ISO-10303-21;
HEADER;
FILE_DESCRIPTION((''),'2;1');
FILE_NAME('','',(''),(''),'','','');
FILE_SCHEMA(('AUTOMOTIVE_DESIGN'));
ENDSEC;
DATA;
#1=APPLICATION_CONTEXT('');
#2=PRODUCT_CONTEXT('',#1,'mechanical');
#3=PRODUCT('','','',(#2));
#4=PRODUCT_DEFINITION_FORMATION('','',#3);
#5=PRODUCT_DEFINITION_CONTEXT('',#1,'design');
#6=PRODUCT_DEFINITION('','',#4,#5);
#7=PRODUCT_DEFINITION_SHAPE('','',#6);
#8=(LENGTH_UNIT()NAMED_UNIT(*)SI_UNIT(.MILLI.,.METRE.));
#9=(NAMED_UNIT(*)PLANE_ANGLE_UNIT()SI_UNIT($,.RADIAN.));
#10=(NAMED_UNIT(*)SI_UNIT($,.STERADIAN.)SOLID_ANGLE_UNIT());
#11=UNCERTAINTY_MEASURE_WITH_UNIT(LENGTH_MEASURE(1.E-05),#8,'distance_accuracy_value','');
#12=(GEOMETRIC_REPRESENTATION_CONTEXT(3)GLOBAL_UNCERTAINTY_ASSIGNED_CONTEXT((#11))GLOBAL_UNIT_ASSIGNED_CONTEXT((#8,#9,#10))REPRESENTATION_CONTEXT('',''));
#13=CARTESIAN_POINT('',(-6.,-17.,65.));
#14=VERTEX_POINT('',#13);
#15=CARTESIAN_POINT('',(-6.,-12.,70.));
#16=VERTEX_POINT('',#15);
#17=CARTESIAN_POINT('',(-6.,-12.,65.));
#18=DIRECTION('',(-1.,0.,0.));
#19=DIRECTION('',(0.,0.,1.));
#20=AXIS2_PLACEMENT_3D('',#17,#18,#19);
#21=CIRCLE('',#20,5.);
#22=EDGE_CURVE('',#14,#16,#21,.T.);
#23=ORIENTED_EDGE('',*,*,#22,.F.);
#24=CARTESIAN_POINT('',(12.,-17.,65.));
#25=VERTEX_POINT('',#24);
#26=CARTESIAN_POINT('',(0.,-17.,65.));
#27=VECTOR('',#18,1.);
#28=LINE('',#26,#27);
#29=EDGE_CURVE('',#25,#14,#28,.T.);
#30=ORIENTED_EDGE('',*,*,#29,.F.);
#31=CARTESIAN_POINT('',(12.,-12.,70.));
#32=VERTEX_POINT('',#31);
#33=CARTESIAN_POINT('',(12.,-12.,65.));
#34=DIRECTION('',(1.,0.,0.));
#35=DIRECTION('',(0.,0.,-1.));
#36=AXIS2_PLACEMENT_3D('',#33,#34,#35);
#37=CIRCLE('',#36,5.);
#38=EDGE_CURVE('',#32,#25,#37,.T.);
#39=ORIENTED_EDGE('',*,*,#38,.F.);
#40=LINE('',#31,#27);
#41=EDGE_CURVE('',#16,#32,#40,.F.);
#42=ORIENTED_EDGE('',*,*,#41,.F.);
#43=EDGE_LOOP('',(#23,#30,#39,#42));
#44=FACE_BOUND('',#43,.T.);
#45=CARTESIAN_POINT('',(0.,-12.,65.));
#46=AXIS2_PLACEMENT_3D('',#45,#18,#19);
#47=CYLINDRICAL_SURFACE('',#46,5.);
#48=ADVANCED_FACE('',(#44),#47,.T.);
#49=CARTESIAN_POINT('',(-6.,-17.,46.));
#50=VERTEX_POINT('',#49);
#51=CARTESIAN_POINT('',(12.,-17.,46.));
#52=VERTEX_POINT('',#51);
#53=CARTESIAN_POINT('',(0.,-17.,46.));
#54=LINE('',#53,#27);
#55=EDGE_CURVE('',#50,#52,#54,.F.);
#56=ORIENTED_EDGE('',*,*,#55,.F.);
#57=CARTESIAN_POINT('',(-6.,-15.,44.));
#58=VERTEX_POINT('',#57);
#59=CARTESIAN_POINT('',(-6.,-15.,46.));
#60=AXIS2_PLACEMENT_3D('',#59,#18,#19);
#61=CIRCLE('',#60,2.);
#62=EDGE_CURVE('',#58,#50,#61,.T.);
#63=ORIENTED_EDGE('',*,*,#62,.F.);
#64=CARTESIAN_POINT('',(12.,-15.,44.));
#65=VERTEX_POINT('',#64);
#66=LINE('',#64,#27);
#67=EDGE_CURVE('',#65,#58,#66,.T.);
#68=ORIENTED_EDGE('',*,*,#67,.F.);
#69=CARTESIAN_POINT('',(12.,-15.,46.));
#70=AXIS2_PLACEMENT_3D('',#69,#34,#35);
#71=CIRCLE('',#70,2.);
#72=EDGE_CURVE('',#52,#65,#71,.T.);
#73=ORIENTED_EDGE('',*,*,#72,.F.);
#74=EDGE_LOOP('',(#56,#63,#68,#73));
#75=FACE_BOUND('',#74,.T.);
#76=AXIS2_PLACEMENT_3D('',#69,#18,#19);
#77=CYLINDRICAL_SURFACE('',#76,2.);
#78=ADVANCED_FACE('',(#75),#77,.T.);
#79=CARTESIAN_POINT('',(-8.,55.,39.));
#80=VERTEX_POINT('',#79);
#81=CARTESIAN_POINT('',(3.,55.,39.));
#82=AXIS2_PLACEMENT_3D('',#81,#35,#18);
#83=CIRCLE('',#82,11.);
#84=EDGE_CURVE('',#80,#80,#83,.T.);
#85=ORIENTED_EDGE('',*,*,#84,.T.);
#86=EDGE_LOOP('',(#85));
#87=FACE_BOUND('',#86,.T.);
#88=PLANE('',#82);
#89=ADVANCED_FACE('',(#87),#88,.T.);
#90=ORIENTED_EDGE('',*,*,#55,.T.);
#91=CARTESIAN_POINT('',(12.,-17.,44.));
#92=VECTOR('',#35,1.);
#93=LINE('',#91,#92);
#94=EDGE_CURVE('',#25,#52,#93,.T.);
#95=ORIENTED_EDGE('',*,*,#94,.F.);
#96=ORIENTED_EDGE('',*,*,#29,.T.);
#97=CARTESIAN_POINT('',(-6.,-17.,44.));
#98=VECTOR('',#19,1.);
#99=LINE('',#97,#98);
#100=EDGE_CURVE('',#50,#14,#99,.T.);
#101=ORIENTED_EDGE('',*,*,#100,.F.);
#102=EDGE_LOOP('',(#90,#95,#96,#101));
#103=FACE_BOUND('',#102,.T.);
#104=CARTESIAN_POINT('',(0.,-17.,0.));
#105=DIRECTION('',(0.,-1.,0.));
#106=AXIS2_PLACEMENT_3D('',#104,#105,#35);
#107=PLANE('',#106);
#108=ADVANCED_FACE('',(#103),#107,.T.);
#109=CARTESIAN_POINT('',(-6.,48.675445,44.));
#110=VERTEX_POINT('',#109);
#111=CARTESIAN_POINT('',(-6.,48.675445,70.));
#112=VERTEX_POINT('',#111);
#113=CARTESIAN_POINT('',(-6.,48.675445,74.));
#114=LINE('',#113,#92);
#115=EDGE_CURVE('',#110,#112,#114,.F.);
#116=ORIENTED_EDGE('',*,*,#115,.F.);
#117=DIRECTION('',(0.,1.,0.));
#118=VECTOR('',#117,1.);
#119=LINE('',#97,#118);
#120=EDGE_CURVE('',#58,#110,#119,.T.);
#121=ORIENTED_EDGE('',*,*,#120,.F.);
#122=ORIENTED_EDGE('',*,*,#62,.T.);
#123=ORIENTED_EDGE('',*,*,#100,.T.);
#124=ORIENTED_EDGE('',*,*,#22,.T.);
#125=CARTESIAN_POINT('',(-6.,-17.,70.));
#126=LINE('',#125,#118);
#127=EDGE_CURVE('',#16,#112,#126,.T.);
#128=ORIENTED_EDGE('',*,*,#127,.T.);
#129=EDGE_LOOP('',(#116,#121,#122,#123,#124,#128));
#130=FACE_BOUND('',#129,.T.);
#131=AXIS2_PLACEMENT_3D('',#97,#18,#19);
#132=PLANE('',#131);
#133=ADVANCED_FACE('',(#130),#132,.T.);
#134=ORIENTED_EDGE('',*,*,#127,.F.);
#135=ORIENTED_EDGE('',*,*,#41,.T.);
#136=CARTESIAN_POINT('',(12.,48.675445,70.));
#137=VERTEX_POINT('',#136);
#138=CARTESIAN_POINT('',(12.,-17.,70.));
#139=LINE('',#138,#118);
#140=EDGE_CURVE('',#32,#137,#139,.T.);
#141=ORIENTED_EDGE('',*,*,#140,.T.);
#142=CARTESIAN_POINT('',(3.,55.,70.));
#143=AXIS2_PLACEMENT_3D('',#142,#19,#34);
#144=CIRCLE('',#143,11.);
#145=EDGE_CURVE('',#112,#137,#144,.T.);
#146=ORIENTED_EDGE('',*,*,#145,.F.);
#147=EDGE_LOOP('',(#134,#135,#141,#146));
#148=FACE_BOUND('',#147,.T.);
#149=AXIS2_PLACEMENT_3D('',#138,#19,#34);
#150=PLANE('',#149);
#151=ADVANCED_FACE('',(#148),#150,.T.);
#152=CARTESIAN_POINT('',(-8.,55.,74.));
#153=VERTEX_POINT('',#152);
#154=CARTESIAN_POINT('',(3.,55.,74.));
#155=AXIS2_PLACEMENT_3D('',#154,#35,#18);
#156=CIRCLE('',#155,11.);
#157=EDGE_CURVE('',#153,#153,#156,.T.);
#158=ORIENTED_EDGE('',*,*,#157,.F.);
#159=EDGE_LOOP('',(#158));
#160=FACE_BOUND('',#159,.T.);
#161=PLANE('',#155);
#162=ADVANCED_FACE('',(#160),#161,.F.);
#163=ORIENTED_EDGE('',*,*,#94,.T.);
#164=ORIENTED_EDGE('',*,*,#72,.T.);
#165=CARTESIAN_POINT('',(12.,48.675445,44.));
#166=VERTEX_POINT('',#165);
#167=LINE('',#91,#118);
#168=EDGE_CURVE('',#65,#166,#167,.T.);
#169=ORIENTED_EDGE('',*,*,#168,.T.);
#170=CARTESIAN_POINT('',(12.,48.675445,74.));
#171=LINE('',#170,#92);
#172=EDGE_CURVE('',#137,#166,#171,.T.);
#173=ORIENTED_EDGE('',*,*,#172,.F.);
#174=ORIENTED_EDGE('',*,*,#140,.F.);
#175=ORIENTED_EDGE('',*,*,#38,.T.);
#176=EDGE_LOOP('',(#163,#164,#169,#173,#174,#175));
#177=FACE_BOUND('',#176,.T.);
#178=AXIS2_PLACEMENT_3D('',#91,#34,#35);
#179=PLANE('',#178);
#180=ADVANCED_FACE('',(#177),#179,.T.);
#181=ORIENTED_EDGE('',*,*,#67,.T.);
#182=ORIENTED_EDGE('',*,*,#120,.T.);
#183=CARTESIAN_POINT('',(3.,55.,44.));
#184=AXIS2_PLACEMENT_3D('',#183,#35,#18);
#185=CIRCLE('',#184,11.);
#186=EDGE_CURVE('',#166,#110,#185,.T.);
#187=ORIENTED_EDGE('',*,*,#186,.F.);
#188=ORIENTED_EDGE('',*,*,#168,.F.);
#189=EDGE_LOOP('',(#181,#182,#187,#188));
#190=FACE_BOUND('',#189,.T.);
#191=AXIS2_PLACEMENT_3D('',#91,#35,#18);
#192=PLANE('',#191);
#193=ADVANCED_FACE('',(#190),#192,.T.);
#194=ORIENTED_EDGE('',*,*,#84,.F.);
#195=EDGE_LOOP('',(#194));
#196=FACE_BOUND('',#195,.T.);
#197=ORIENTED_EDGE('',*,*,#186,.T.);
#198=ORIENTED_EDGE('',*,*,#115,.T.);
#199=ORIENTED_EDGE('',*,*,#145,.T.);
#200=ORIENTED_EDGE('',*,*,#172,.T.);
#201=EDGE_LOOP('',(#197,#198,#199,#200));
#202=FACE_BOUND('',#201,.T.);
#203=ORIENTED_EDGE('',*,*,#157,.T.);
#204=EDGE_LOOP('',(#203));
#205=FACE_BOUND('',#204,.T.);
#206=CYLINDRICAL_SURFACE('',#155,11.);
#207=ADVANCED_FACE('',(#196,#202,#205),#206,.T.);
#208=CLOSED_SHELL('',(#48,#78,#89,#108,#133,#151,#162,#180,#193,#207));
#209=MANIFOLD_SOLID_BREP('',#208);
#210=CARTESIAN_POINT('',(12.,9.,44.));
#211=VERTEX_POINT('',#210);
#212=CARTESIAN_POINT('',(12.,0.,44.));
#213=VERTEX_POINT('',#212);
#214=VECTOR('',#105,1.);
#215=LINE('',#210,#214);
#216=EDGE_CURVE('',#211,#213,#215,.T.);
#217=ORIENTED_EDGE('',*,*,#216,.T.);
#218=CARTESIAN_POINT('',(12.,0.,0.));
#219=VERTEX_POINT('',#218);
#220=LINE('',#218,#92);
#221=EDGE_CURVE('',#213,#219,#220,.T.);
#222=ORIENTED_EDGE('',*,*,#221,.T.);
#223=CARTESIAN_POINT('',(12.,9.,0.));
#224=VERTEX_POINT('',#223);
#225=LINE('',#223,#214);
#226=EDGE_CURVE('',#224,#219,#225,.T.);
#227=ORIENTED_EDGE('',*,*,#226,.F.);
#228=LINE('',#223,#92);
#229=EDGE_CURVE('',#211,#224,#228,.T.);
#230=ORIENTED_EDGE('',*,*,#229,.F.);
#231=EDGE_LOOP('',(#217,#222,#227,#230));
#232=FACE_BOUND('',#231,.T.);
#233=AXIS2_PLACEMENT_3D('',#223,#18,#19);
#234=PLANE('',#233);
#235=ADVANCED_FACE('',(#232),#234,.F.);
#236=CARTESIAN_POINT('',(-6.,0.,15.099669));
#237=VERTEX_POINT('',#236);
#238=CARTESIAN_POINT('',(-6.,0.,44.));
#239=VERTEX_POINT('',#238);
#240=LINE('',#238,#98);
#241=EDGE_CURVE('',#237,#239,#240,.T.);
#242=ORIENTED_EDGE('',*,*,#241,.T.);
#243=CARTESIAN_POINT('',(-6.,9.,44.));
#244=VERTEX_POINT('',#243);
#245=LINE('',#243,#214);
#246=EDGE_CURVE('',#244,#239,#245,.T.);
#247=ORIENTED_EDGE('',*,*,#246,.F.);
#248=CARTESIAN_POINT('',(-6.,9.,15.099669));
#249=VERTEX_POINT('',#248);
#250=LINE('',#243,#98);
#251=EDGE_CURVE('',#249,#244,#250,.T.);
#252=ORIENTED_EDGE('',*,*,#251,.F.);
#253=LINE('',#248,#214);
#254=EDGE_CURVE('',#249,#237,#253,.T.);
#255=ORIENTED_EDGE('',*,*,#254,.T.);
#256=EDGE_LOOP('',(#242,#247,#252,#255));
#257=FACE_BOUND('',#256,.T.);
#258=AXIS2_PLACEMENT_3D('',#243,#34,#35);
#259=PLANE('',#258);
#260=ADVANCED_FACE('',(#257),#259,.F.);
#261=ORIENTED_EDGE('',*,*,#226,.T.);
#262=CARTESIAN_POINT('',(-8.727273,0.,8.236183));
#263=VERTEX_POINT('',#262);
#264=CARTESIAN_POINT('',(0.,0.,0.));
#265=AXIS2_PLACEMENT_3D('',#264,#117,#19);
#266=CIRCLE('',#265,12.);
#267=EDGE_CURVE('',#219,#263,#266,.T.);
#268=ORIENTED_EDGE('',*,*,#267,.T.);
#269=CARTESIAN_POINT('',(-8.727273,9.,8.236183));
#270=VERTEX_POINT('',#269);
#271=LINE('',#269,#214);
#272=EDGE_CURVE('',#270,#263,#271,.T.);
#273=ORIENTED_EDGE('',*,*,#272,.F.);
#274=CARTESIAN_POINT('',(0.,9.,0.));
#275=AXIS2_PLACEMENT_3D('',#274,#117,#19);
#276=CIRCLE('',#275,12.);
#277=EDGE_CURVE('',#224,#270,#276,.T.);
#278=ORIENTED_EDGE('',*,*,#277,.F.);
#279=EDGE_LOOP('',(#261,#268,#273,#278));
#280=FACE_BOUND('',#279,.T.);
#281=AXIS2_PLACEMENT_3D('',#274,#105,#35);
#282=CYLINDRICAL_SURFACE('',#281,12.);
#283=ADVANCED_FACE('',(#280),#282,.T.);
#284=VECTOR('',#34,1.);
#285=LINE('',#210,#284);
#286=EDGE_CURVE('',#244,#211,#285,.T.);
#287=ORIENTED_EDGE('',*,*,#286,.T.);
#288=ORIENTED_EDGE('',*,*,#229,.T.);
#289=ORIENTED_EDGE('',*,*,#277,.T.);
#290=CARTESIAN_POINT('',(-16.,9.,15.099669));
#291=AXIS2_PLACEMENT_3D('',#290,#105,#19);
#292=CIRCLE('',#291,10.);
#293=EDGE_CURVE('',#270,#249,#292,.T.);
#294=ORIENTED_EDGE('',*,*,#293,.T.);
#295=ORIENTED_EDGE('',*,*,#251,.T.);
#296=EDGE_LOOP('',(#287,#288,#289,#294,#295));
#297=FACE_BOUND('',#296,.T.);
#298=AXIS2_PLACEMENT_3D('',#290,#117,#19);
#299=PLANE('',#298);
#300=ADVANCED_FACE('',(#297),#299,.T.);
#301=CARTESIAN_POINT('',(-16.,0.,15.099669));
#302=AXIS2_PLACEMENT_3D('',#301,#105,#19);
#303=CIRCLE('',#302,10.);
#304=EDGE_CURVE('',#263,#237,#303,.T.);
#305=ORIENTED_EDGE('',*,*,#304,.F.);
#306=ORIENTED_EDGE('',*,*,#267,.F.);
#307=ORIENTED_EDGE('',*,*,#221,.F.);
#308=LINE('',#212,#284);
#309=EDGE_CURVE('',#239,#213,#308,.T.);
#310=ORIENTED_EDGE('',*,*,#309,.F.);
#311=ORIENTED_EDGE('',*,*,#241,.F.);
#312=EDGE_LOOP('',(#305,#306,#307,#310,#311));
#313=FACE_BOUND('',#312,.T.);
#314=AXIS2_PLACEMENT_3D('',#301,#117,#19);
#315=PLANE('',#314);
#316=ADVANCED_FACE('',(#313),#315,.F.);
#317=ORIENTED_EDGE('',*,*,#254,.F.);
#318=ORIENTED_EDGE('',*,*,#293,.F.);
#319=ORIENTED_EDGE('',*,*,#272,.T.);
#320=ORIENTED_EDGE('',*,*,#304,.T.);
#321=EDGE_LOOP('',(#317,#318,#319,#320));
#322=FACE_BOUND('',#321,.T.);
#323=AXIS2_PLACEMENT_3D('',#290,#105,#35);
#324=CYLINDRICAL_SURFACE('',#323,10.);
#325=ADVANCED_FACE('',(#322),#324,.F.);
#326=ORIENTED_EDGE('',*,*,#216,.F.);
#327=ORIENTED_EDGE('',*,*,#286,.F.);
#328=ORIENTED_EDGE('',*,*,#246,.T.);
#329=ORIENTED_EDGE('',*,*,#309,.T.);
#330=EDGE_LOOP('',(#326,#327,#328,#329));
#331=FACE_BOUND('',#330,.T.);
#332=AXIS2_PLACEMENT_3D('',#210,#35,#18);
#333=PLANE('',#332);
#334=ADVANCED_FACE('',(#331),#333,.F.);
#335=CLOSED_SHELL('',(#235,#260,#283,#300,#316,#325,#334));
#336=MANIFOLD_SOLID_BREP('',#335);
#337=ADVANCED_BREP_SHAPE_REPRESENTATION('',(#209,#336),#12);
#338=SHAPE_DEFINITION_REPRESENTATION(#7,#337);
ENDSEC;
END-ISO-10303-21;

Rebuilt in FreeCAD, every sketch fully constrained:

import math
import FreeCAD as App
import Part
import Sketcher
Q = App.Units.Quantity


def edges_at(feature, points):
    """Names of the edges that pass closest to the given points."""
    edges = feature.Shape.Edges
    near = lambda p: min(range(len(edges)), key=lambda i: edges[i].distToShape(Part.Vertex(*p))[0])
    return sorted({f"Edge{near(p) + 1}" for p in points})


def add_polygon(sketch, points):
    """Adds a closed chain of lines whose ends are joined by coincident constraints."""
    first, n = sketch.GeometryCount, len(points)
    for a, b in zip(points, points[1:] + points[:1]):
        sketch.addGeometry(Part.LineSegment(App.Vector(*a, 0), App.Vector(*b, 0)), False)
    for i in range(n):
        sketch.addConstraint(Sketcher.Constraint("Coincident", first + i, 2, first + (i + 1) % n, 1))

doc = App.newDocument("Part")
body = doc.addObject("PartDesign::Body", "Body")

sketch1 = body.newObject("Sketcher::SketchObject", "Sketch")
sketch1.AttachmentSupport = (doc.getObject("XZ_Plane"), [""])
sketch1.MapMode = "FlatFace"
sketch1.addGeometry([
    Part.LineSegment(App.Vector(12, 44, 0), App.Vector(12, 0, 0)),
    Part.ArcOfCircle(Part.Circle(App.Vector(0, 0, 0), App.Vector(0, 0, 1), 12), math.radians(136.658242), math.radians(360)),
    Part.ArcOfCircle(Part.Circle(App.Vector(-16, 15.099669, 0), App.Vector(0, 0, 1), 10), math.radians(-43.341758), math.radians(0)),
    Part.LineSegment(App.Vector(-6, 15.099669, 0), App.Vector(-6, 44, 0)),
    Part.LineSegment(App.Vector(-6, 44, 0), App.Vector(12, 44, 0)),
], False)
sketch1.addConstraint([
    Sketcher.Constraint("Tangent", 0, 2, 1, 2),
    Sketcher.Constraint("Tangent", 1, 1, 2, 1),
    Sketcher.Constraint("Tangent", 2, 2, 3, 1),
    Sketcher.Constraint("Coincident", 3, 2, 4, 1),
    Sketcher.Constraint("Coincident", 4, 2, 0, 1),
    Sketcher.Constraint("Vertical", 0),
    Sketcher.Constraint("Vertical", 3),
    Sketcher.Constraint("Horizontal", 4),
    Sketcher.Constraint("Coincident", 1, 3, -1, 1),
    Sketcher.Constraint("Radius", 1, Q("12 mm")),
    Sketcher.Constraint("Radius", 2, Q("10 mm")),
    Sketcher.Constraint("DistanceX", 4, 1, 4, 2, Q("18 mm")),
    Sketcher.Constraint("DistanceY", 0, 2, 0, 1, Q("44 mm")),
])
pad1 = body.newObject("PartDesign::Pad", "Pad")
pad1.Profile = sketch1
pad1.Length = 9
pad1.Reversed = True
body2 = doc.addObject("PartDesign::Body", "Body001")

sketch2 = body2.newObject("Sketcher::SketchObject", "Sketch001")
sketch2.AttachmentSupport = (doc.getObject("XZ_Plane001"), [""])
sketch2.MapMode = "FlatFace"
sketch2.AttachmentOffset = App.Placement(App.Vector(0, 0, -9), App.Rotation())
add_polygon(sketch2, [(-6, 44), (-6, 70), (12, 70), (12, 44)])
sketch2.addConstraint([
    Sketcher.Constraint("Vertical", 0),
    Sketcher.Constraint("Horizontal", 1),
    Sketcher.Constraint("Vertical", 2),
    Sketcher.Constraint("Horizontal", 3),
    Sketcher.Constraint("DistanceX", 1, 1, 1, 2, Q("18 mm")),
    Sketcher.Constraint("DistanceY", 0, 1, 0, 2, Q("26 mm")),
    Sketcher.Constraint("DistanceX", 0, 2, -1, 1, Q("6 mm")),
    Sketcher.Constraint("DistanceY", -1, 1, 0, 2, Q("70 mm")),
])
pad2 = body2.newObject("PartDesign::Pad", "Pad001")
pad2.Profile = sketch2
pad2.Type = "TwoLengths"
pad2.Length = 40
pad2.Length2 = 26
pad2.Reversed = True
doc.recompute()

fillet = body2.newObject("PartDesign::Fillet", "Fillet")
fillet.Base = (pad2, edges_at(pad2, [(3, -17, 44)]))
fillet.Radius = 2
doc.recompute()

fillet2 = body2.newObject("PartDesign::Fillet", "Fillet001")
fillet2.Base = (fillet, edges_at(fillet, [(3, -17, 70)]))
fillet2.Radius = 5

sketch3 = body2.newObject("Sketcher::SketchObject", "Sketch002")
sketch3.AttachmentSupport = (doc.getObject("XY_Plane001"), [""])
sketch3.MapMode = "FlatFace"
sketch3.AttachmentOffset = App.Placement(App.Vector(0, 0, 44), App.Rotation())
sketch3.addGeometry(Part.Circle(App.Vector(3, 55, 0), App.Vector(0, 0, 1), 11), False)
sketch3.addConstraint([
    Sketcher.Constraint("Diameter", 0, Q("22 mm")),
    Sketcher.Constraint("DistanceX", -1, 1, 0, 3, Q("3 mm")),
    Sketcher.Constraint("DistanceY", -1, 1, 0, 3, Q("55 mm")),
])
pad3 = body2.newObject("PartDesign::Pad", "Pad002")
pad3.Profile = sketch3
pad3.Type = "TwoLengths"
pad3.Length = 5
pad3.Length2 = 30
pad3.Reversed = True

doc.recompute()
